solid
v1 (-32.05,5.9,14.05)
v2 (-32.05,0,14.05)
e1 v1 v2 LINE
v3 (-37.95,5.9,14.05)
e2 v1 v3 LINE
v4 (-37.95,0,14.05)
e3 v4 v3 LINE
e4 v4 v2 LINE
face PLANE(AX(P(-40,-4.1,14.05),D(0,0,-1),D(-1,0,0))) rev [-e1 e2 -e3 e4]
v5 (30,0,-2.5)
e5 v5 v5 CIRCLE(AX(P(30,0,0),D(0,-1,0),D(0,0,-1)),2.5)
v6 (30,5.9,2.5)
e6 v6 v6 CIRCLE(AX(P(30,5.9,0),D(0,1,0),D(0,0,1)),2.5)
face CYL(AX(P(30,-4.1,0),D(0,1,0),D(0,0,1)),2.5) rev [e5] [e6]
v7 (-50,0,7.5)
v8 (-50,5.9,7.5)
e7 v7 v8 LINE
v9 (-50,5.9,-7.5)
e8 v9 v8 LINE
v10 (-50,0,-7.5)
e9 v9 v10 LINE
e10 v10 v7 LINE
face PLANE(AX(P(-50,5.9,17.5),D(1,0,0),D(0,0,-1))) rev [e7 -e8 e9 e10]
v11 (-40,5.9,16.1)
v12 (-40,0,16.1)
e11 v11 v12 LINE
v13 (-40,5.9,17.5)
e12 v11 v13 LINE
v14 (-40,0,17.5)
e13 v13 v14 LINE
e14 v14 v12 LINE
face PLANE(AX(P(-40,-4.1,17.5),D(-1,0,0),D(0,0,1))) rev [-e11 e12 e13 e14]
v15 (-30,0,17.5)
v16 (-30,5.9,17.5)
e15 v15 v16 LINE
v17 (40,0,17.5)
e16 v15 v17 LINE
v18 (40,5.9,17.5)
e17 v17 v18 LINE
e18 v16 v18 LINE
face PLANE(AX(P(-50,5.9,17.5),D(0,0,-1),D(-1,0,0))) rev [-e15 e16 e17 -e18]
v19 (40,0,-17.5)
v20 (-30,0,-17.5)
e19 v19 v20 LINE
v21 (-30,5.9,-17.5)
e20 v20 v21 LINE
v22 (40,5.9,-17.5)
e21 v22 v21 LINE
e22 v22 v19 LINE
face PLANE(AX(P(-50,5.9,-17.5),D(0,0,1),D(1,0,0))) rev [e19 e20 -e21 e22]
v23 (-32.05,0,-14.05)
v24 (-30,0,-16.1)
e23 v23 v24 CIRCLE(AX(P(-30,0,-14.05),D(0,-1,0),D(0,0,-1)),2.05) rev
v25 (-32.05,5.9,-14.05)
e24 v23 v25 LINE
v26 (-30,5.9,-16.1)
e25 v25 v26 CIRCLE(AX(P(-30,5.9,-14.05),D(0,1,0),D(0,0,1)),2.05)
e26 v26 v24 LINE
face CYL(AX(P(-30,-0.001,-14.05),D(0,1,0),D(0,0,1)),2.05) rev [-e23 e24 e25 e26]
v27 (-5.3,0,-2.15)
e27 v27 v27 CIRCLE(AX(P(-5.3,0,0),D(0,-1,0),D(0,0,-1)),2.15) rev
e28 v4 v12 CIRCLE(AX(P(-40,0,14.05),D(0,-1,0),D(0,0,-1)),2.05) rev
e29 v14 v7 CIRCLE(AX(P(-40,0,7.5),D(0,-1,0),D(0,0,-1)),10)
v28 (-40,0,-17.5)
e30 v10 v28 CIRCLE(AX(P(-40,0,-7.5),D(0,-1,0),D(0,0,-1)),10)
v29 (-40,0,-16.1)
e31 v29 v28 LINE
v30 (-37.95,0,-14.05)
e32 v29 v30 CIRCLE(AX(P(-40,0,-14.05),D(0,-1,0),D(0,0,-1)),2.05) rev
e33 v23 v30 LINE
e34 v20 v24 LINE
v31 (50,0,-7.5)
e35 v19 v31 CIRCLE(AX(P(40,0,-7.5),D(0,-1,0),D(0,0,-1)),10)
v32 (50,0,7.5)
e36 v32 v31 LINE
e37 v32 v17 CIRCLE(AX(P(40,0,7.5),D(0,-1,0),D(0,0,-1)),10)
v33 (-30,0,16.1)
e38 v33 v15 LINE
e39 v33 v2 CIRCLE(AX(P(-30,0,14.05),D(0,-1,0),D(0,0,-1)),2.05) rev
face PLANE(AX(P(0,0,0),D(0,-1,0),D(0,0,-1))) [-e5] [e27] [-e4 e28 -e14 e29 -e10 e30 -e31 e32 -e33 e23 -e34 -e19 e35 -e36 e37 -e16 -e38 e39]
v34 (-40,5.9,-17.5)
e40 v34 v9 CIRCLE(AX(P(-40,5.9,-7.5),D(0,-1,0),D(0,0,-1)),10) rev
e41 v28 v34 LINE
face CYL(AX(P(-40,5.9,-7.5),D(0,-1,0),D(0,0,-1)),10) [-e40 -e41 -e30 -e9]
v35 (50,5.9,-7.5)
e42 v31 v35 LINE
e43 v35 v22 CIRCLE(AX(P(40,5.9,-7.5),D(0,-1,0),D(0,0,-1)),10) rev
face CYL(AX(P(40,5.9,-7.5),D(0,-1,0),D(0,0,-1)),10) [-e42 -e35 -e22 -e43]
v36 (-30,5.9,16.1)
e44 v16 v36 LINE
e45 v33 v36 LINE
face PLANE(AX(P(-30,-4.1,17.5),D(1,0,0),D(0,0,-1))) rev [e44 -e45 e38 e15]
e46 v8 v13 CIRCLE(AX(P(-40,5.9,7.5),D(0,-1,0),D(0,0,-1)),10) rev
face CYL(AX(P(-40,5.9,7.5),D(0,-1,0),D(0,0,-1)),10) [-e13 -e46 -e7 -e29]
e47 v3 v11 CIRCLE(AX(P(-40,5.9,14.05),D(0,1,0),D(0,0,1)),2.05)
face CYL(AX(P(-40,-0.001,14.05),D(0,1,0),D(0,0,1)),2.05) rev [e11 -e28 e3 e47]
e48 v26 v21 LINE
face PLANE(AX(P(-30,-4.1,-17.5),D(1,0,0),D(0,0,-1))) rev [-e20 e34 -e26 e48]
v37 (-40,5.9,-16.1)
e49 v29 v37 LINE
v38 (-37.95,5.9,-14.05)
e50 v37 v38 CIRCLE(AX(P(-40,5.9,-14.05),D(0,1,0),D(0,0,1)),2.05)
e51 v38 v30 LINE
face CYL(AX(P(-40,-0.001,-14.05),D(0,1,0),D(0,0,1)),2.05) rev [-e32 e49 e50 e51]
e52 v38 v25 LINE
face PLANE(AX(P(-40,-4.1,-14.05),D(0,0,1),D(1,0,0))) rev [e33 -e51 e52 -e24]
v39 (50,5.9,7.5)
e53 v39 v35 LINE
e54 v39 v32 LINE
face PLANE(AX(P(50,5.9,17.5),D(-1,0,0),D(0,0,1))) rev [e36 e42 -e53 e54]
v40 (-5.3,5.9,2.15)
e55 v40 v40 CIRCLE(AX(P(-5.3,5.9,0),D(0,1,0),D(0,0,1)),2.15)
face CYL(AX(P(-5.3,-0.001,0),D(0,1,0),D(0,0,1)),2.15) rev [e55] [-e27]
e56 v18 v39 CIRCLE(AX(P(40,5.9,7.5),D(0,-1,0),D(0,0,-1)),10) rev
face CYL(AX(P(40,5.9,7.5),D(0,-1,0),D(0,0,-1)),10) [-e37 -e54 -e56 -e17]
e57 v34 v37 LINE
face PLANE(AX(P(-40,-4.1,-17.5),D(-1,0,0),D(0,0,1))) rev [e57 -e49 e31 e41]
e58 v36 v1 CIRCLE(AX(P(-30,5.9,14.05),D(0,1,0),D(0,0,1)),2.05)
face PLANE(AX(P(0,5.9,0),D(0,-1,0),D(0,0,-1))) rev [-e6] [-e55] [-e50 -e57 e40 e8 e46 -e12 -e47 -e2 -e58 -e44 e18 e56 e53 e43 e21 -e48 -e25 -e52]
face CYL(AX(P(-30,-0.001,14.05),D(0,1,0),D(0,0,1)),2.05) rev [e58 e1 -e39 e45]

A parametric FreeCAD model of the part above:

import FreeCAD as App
import Part
import Sketcher
Q = App.Units.Quantity


def edges_at(feature, points):
    """Names of the edges that pass closest to the given points."""
    edges = feature.Shape.Edges
    near = lambda p: min(range(len(edges)), key=lambda i: edges[i].distToShape(Part.Vertex(*p))[0])
    return sorted({f"Edge{near(p) + 1}" for p in points})

doc = App.newDocument("Part")
body = doc.addObject("PartDesign::Body", "Body")

sketch1 = body.newObject("Sketcher::SketchObject", "Sketch")
sketch1.AttachmentSupport = (doc.getObject("XZ_Plane"), [""])
sketch1.MapMode = "FlatFace"
sketch1.addGeometry([
    Part.LineSegment(App.Vector(-50, -18, 0), App.Vector(-50, 18, 0)),
    Part.LineSegment(App.Vector(-50, 18, 0), App.Vector(50, 18, 0)),
    Part.LineSegment(App.Vector(50, 18, 0), App.Vector(50, -18, 0)),
    Part.LineSegment(App.Vector(50, -18, 0), App.Vector(-50, -18, 0)),
], False)
sketch1.addConstraint([
    Sketcher.Constraint("Coincident", 0, 2, 1, 1),
    Sketcher.Constraint("Coincident", 1, 2, 2, 1),
    Sketcher.Constraint("Coincident", 2, 2, 3, 1),
    Sketcher.Constraint("Coincident", 3, 2, 0, 1),
    Sketcher.Constraint("Vertical", 0),
    Sketcher.Constraint("Horizontal", 1),
    Sketcher.Constraint("Vertical", 2),
    Sketcher.Constraint("Horizontal", 3),
    Sketcher.Constraint("Symmetric", 0, 2, 2, 2, -1, 1),
    Sketcher.Constraint("DistanceX", 1, 1, 1, 2, Q("100 mm")),
    Sketcher.Constraint("DistanceY", 0, 1, 0, 2, Q("35 mm")),
])
pad1 = body.newObject("PartDesign::Pad", "Pad")
pad1.Profile = sketch1
pad1.Length = 5.9
pad1.Reversed = True

sketch2 = body.newObject("Sketcher::SketchObject", "Sketch001")
sketch2.AttachmentSupport = (doc.getObject("XZ_Plane"), [""])
sketch2.MapMode = "FlatFace"
sketch2.AttachmentOffset = App.Placement(App.Vector(0, 0, -5.9), App.Rotation())
sketch2.addGeometry(Part.Circle(App.Vector(30, 0, 0), App.Vector(0, 0, 1), 2.5), False)
sketch2.addConstraint([
    Sketcher.Constraint("PointOnObject", 0, 3, -1),
    Sketcher.Constraint("Diameter", 0, Q("5 mm")),
    Sketcher.Constraint("DistanceX", -1, 1, 0, 3, Q("30 mm")),
])
pocket1 = body.newObject("PartDesign::Pocket", "Pocket")
pocket1.Profile = sketch2
pocket1.Length = 10
pocket1.Reversed = True
doc.recompute()

fillet = body.newObject("PartDesign::Fillet", "Fillet")
fillet.Base = (pocket1, edges_at(pocket1, [
    (50, 2.95, 17.5),
    (-50, 2.95, 17.5),
    (-50, 2.95, -17.5),
    (50, 2.95, -17.5),
]))
fillet.Radius = 10

sketch3 = body.newObject("Sketcher::SketchObject", "Sketch002")
sketch3.AttachmentSupport = (doc.getObject("XZ_Plane"), [""])
sketch3.MapMode = "FlatFace"
sketch3.AttachmentOffset = App.Placement(App.Vector(0, 0, -5.9), App.Rotation())
sketch3.addGeometry([
    Part.LineSegment(App.Vector(-40, -17.5, 0), App.Vector(-40, -14.1, 0)),
    Part.LineSegment(App.Vector(-40, -14.1, 0), App.Vector(-30, -14.1, 0)),
    Part.LineSegment(App.Vector(-30, -14.1, 0), App.Vector(-30, -17.5, 0)),
    Part.LineSegment(App.Vector(-30, -17.5, 0), App.Vector(-40, -17.5, 0)),
    Part.LineSegment(App.Vector(-40, 14.1, 0), App.Vector(-40, 17.5, 0)),
    Part.LineSegment(App.Vector(-40, 17.5, 0), App.Vector(-30, 17.5, 0)),
    Part.LineSegment(App.Vector(-30, 17.5, 0), App.Vector(-30, 14.1, 0)),
    Part.LineSegment(App.Vector(-30, 14.1, 0), App.Vector(-40, 14.1, 0)),
], False)
sketch3.addConstraint([
    Sketcher.Constraint("Coincident", 0, 2, 1, 1),
    Sketcher.Constraint("Coincident", 1, 2, 2, 1),
    Sketcher.Constraint("Coincident", 2, 2, 3, 1),
    Sketcher.Constraint("Coincident", 3, 2, 0, 1),
    Sketcher.Constraint("Coincident", 4, 2, 5, 1),
    Sketcher.Constraint("Coincident", 5, 2, 6, 1),
    Sketcher.Constraint("Coincident", 6, 2, 7, 1),
    Sketcher.Constraint("Coincident", 7, 2, 4, 1),
    Sketcher.Constraint("Vertical", 0),
    Sketcher.Constraint("Horizontal", 1),
    Sketcher.Constraint("Vertical", 2),
    Sketcher.Constraint("Horizontal", 3),
    Sketcher.Constraint("Vertical", 4),
    Sketcher.Constraint("Horizontal", 5),
    Sketcher.Constraint("Vertical", 6),
    Sketcher.Constraint("Horizontal", 7),
    Sketcher.Constraint("Symmetric", 3, 2, 4, 2, -1),
    Sketcher.Constraint("Symmetric", 1, 2, 6, 2, -1),
    Sketcher.Constraint("DistanceX", 1, 1, 1, 2, Q("10 mm")),
    Sketcher.Constraint("DistanceX", 0, 2, -1, 1, Q("40 mm")),
    Sketcher.Constraint("DistanceY", 3, 2, 4, 2, Q("35 mm")),
    Sketcher.Constraint("DistanceY", 0, 1, 0, 2, Q("3.45 mm")),
])
pocket2 = body.newObject("PartDesign::Pocket", "Pocket001")
pocket2.Profile = sketch3
pocket2.Length = 10
pocket2.Reversed = True

sketch4 = body.newObject("Sketcher::SketchObject", "Sketch003")
sketch4.AttachmentSupport = (doc.getObject("XZ_Plane"), [""])
sketch4.MapMode = "FlatFace"
sketch4.AttachmentOffset = App.Placement(App.Vector(0, 0, -5.9), App.Rotation())
sketch4.addGeometry(Part.Circle(App.Vector(-5.3, 0, 0), App.Vector(0, 0, 1), 2.1), False)
sketch4.addConstraint([
    Sketcher.Constraint("PointOnObject", 0, 3, -1),
    Sketcher.Constraint("Diameter", 0, Q("4.3 mm")),
    Sketcher.Constraint("DistanceX", 0, 3, -1, 1, Q("5.3 mm")),
])
pocket3 = body.newObject("PartDesign::Pocket", "Pocket002")
pocket3.Profile = sketch4
pocket3.Type = "UpToFirst"
pocket3.Reversed = True

sketch5 = body.newObject("Sketcher::SketchObject", "Sketch004")
sketch5.AttachmentSupport = (doc.getObject("XZ_Plane"), [""])
sketch5.MapMode = "FlatFace"
sketch5.AttachmentOffset = App.Placement(App.Vector(0, 0, -5.9), App.Rotation())
sketch5.addGeometry(Part.Circle(App.Vector(-40, -14.1, 0), App.Vector(0, 0, 1), 2), False)
sketch5.addConstraint([
    Sketcher.Constraint("Diameter", 0, Q("4.1 mm")),
    Sketcher.Constraint("DistanceX", 0, 3, -1, 1, Q("40 mm")),
    Sketcher.Constraint("DistanceY", 0, 3, -1, 1, Q("14.05 mm")),
])
pocket4 = body.newObject("PartDesign::Pocket", "Pocket003")
pocket4.Profile = sketch5
pocket4.Type = "UpToFirst"
pocket4.Reversed = True

sketch6 = body.newObject("Sketcher::SketchObject", "Sketch005")
sketch6.AttachmentSupport = (doc.getObject("XZ_Plane"), [""])
sketch6.MapMode = "FlatFace"
sketch6.AttachmentOffset = App.Placement(App.Vector(0, 0, -5.9), App.Rotation())
sketch6.addGeometry(Part.Circle(App.Vector(-30, -14.1, 0), App.Vector(0, 0, 1), 2), False)
sketch6.addConstraint([
    Sketcher.Constraint("Diameter", 0, Q("4.1 mm")),
    Sketcher.Constraint("DistanceX", 0, 3, -1, 1, Q("30 mm")),
    Sketcher.Constraint("DistanceY", 0, 3, -1, 1, Q("14.05 mm")),
])
pocket5 = body.newObject("PartDesign::Pocket", "Pocket004")
pocket5.Profile = sketch6
pocket5.Type = "UpToFirst"
pocket5.Reversed = True

sketch7 = body.newObject("Sketcher::SketchObject", "Sketch006")
sketch7.AttachmentSupport = (doc.getObject("XZ_Plane"), [""])
sketch7.MapMode = "FlatFace"
sketch7.AttachmentOffset = App.Placement(App.Vector(0, 0, -5.9), App.Rotation())
sketch7.addGeometry(Part.Circle(App.Vector(-30, 14.1, 0), App.Vector(0, 0, 1), 2), False)
sketch7.addConstraint([
    Sketcher.Constraint("Diameter", 0, Q("4.1 mm")),
    Sketcher.Constraint("DistanceX", 0, 3, -1, 1, Q("30 mm")),
    Sketcher.Constraint("DistanceY", -1, 1, 0, 3, Q("14.05 mm")),
])
pocket6 = body.newObject("PartDesign::Pocket", "Pocket005")
pocket6.Profile = sketch7
pocket6.Type = "UpToFirst"
pocket6.Reversed = True

sketch8 = body.newObject("Sketcher::SketchObject", "Sketch007")
sketch8.AttachmentSupport = (doc.getObject("XZ_Plane"), [""])
sketch8.MapMode = "FlatFace"
sketch8.AttachmentOffset = App.Placement(App.Vector(0, 0, -5.9), App.Rotation())
sketch8.addGeometry(Part.Circle(App.Vector(-40, 14.1, 0), App.Vector(0, 0, 1), 2), False)
sketch8.addConstraint([
    Sketcher.Constraint("Diameter", 0, Q("4.1 mm")),
    Sketcher.Constraint("DistanceX", 0, 3, -1, 1, Q("40 mm")),
    Sketcher.Constraint("DistanceY", -1, 1, 0, 3, Q("14.05 mm")),
])
pocket7 = body.newObject("PartDesign::Pocket", "Pocket006")
pocket7.Profile = sketch8
pocket7.Type = "UpToFirst"
pocket7.Reversed = True

doc.recompute()
